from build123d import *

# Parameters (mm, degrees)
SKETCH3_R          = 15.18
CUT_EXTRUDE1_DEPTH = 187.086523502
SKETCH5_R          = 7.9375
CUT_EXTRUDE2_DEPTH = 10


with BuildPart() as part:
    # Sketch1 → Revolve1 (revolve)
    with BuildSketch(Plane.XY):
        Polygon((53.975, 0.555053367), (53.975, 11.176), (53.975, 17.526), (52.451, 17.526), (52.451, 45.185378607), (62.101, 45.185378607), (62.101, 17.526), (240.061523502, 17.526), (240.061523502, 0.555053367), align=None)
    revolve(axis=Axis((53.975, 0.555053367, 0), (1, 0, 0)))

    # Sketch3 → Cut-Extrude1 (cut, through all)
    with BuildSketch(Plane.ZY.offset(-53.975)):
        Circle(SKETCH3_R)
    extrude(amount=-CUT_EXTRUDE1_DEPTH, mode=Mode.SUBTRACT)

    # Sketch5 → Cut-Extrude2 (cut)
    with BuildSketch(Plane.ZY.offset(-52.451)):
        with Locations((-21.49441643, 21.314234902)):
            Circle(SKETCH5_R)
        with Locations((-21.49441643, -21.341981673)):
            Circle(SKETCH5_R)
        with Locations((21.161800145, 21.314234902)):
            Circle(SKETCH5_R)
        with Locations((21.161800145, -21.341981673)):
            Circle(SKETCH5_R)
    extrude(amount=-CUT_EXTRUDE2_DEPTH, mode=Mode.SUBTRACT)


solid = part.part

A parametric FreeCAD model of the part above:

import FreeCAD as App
import Part
import Sketcher
from FreeCAD import Vector
Q = App.Units.Quantity


def add_polygon(sketch, points):
    """Adds a closed chain of lines whose ends are joined by coincident constraints."""
    first, n = sketch.GeometryCount, len(points)
    for a, b in zip(points, points[1:] + points[:1]):
        sketch.addGeometry(Part.LineSegment(App.Vector(*a, 0), App.Vector(*b, 0)), False)
    for i in range(n):
        sketch.addConstraint(Sketcher.Constraint("Coincident", first + i, 2, first + (i + 1) % n, 1))

doc = App.newDocument("Part")
body = doc.addObject("PartDesign::Body", "Body")

sketch1 = doc.addObject("Sketcher::SketchObject", "Sketch")
body.addObject(sketch1)
sketch1.AttachmentSupport = (doc.XY_Plane, [""])
sketch1.MapMode = "FlatFace"
add_polygon(sketch1, [(54, 17.5), (54, 0.6), (240.1, 0.6), (240.1, 17.5), (62.1, 17.5), (62.1, 45.2), (52.5, 45.2), (52.5, 17.5)])
sketch1.addGeometry(Part.LineSegment(Vector(52.5, 0.6, 0), Vector(240.1, 0.6, 0)), True)
sketch1.addConstraint([
    Sketcher.Constraint("Vertical", 0),
    Sketcher.Constraint("Horizontal", 1),
    Sketcher.Constraint("Vertical", 2),
    Sketcher.Constraint("Horizontal", 3),
    Sketcher.Constraint("Vertical", 4),
    Sketcher.Constraint("Horizontal", 5),
    Sketcher.Constraint("Vertical", 6),
    Sketcher.Constraint("Horizontal", 7),
    Sketcher.Constraint("Horizontal", 8),
    Sketcher.Constraint("Coincident", 8, 2, 1, 2),
    Sketcher.Constraint("Horizontal", 3, 2, 6, 2),
    Sketcher.Constraint("Vertical", 6, 2, 8, 1),
    Sketcher.Constraint("DistanceX", 7, 1, 7, 2, Q("0.06 in")),
    Sketcher.Constraint("DistanceY", -1, 1, 2, 2, Q("0.69 in")),
    Sketcher.Constraint("DistanceX", -1, 1, 0, 2, Q("2.125 in")),
    Sketcher.Constraint("DistanceX", 5, 2, 5, 1, Q("9.65 mm")),
    Sketcher.Constraint("DistanceY", 4, 1, 4, 2, Q("27.659379 mm")),
    Sketcher.Constraint("DistanceX", 1, 1, 1, 2, Q("186.086524 mm")),
    Sketcher.Constraint("DistanceY", 0, 2, 0, 1, Q("16.970947 mm")),
])
revolution = doc.addObject("PartDesign::Revolution", "Revolution")
body.addObject(revolution)
revolution.Profile = sketch1
revolution.ReferenceAxis = (sketch1, ["Axis0"])
revolution.Angle = 360

sketch2 = doc.addObject("Sketcher::SketchObject", "Sketch001")
body.addObject(sketch2)
sketch2.AttachmentSupport = (doc.YZ_Plane, [""])
sketch2.MapMode = "FlatFace"
sketch2.AttachmentOffset = App.Placement(Vector(0, 0, 2.125 * 25.4), App.Rotation())
sketch2.addGeometry(Part.Circle(Vector(0, 0, 0), Vector(0, 0, 1), 15), False)
sketch2.addConstraint([
    Sketcher.Constraint("Coincident", 0, 3, -1, 1),
    Sketcher.Constraint("Diameter", 0, Q("30.36 mm")),
])
pocket1 = doc.addObject("PartDesign::Pocket", "Pocket")
body.addObject(pocket1)
pocket1.Profile = sketch2
pocket1.Type = "ThroughAll"
pocket1.Reversed = True

sketch3 = doc.addObject("Sketcher::SketchObject", "Sketch002")
body.addObject(sketch3)
sketch3.AttachmentSupport = (doc.YZ_Plane, [""])
sketch3.MapMode = "FlatFace"
sketch3.AttachmentOffset = App.Placement(Vector(0, 0, 2.065 * 25.4), App.Rotation())
sketch3.addGeometry([
    Part.Circle(Vector(21, -21, 0), Vector(0, 0, 1), 8),
    Part.Circle(Vector(-21, -21, 0), Vector(0, 0, 1), 8),
    Part.Circle(Vector(21, 21, 0), Vector(0, 0, 1), 8),
    Part.Circle(Vector(-21, 21, 0), Vector(0, 0, 1), 8),
], False)
sketch3.addConstraint([
    Sketcher.Constraint("Equal", 0, 1),
    Sketcher.Constraint("Equal", 1, 2),
    Sketcher.Constraint("Equal", 2, 3),
    Sketcher.Constraint("Horizontal", 0, 3, 1, 3),
    Sketcher.Constraint("Horizontal", 2, 3, 3, 3),
    Sketcher.Constraint("Vertical", 0, 3, 2, 3),
    Sketcher.Constraint("Vertical", 1, 3, 3, 3),
    Sketcher.Constraint("Diameter", 0, Q("0.625 in")),
    Sketcher.Constraint("DistanceY", -1, 1, 2, 3, Q("21.1618 mm")),
    Sketcher.Constraint("DistanceX", 1, 3, -1, 1, Q("21.341982 mm")),
    Sketcher.Constraint("DistanceX", -1, 1, 0, 3, Q("21.314235 mm")),
    Sketcher.Constraint("DistanceY", 0, 3, -1, 1, Q("21.494416 mm")),
])
pocket2 = doc.addObject("PartDesign::Pocket", "Pocket001")
body.addObject(pocket2)
pocket2.Profile = sketch3
pocket2.Length = 10
pocket2.Reversed = True

doc.recompute()
